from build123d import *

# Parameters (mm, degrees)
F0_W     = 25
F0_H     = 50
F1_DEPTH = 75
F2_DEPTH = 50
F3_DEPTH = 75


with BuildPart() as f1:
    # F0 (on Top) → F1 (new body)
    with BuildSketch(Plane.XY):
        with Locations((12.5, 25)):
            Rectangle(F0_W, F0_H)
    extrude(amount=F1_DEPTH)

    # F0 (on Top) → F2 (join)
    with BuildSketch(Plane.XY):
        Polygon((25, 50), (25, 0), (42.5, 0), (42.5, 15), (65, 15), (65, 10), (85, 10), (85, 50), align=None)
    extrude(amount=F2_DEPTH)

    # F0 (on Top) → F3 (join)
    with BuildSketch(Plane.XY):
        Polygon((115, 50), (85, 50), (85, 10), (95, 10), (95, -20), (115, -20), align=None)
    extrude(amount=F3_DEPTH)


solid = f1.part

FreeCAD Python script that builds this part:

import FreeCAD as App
import Part
import Sketcher

V = App.Vector


def add_polygon(sketch, points):
    """Adds a closed chain of lines whose ends are joined by coincident constraints."""
    first, n = sketch.GeometryCount, len(points)
    for a, b in zip(points, points[1:] + points[:1]):
        sketch.addGeometry(Part.LineSegment(App.Vector(*a, 0), App.Vector(*b, 0)), False)
    for i in range(n):
        sketch.addConstraint(Sketcher.Constraint("Coincident", first + i, 2, first + (i + 1) % n, 1))

doc = App.newDocument("Part")
body = doc.addObject("PartDesign::Body", "Body")

sketch1 = body.newObject("Sketcher::SketchObject", "Sketch")
sketch1.AttachmentSupport = (doc.getObject("XY_Plane"), [""])
sketch1.MapMode = "FlatFace"
add_polygon(sketch1, [(0, 50), (0, 0), (25, 0), (25, 50)])
sketch1.addConstraint(Sketcher.Constraint("Vertical", 0))
sketch1.addConstraint(Sketcher.Constraint("Horizontal", 1))
sketch1.addConstraint(Sketcher.Constraint("Vertical", 2))
sketch1.addConstraint(Sketcher.Constraint("Horizontal", 3))
sketch1.addConstraint(Sketcher.Constraint("Coincident", 0, 2, -1, 1))
sketch1.addConstraint(Sketcher.Constraint("DistanceX", 1, 1, 1, 2, 25.0))
sketch1.addConstraint(Sketcher.Constraint("DistanceY", 0, 2, 0, 1, 50.0))
pad1 = body.newObject("PartDesign::Pad", "Pad")
pad1.Profile = sketch1
pad1.Length = 75

sketch2 = body.newObject("Sketcher::SketchObject", "Sketch001")
sketch2.AttachmentSupport = (doc.getObject("XY_Plane"), [""])
sketch2.MapMode = "FlatFace"
add_polygon(sketch2, [(25, 50), (25, 0), (42, 0), (42, 15), (65, 15), (65, 10), (85, 10), (85, 50)])
sketch2.addConstraint(Sketcher.Constraint("Vertical", 0))
sketch2.addConstraint(Sketcher.Constraint("Horizontal", 1))
sketch2.addConstraint(Sketcher.Constraint("Vertical", 2))
sketch2.addConstraint(Sketcher.Constraint("Horizontal", 3))
sketch2.addConstraint(Sketcher.Constraint("Vertical", 4))
sketch2.addConstraint(Sketcher.Constraint("Horizontal", 5))
sketch2.addConstraint(Sketcher.Constraint("Vertical", 6))
sketch2.addConstraint(Sketcher.Constraint("Horizontal", 7))
sketch2.addConstraint(Sketcher.Constraint("PointOnObject", 0, 2, -1))
sketch2.addConstraint(Sketcher.Constraint("DistanceX", 5, 1, 5, 2, 20.0))
sketch2.addConstraint(Sketcher.Constraint("DistanceX", 7, 2, 7, 1, 60.0))
sketch2.addConstraint(Sketcher.Constraint("DistanceY", 0, 2, 0, 1, 50.0))
sketch2.addConstraint(Sketcher.Constraint("DistanceY", 2, 1, 2, 2, 15.0))
sketch2.addConstraint(Sketcher.Constraint("DistanceY", 4, 2, 4, 1, 5.0))
sketch2.addConstraint(Sketcher.Constraint("DistanceX", 1, 1, 1, 2, 17.5))
sketch2.addConstraint(Sketcher.Constraint("DistanceX", -1, 1, 0, 2, 25.0))
pad2 = body.newObject("PartDesign::Pad", "Pad001")
pad2.Profile = sketch2
pad2.Length = 50

sketch3 = body.newObject("Sketcher::SketchObject", "Sketch002")
sketch3.AttachmentSupport = (doc.getObject("XY_Plane"), [""])
sketch3.MapMode = "FlatFace"
add_polygon(sketch3, [(115, 50), (85, 50), (85, 10), (95, 10), (95, -20), (115, -20)])
sketch3.addConstraint(Sketcher.Constraint("Horizontal", 0))
sketch3.addConstraint(Sketcher.Constraint("Vertical", 1))
sketch3.addConstraint(Sketcher.Constraint("Horizontal", 2))
sketch3.addConstraint(Sketcher.Constraint("Vertical", 3))
sketch3.addConstraint(Sketcher.Constraint("Horizontal", 4))
sketch3.addConstraint(Sketcher.Constraint("Vertical", 5))
sketch3.addConstraint(Sketcher.Constraint("Equal", 0, 3))
sketch3.addConstraint(Sketcher.Constraint("DistanceX", 0, 2, 0, 1, 30.0))
sketch3.addConstraint(Sketcher.Constraint("DistanceX", 2, 1, 2, 2, 10.0))
sketch3.addConstraint(Sketcher.Constraint("DistanceY", 1, 2, 1, 1, 40.0))
sketch3.addConstraint(Sketcher.Constraint("DistanceX", -1, 1, 0, 2, 85.0))
sketch3.addConstraint(Sketcher.Constraint("DistanceY", -1, 1, 0, 2, 50.0))
pad3 = body.newObject("PartDesign::Pad", "Pad002")
pad3.Profile = sketch3
pad3.Length = 75

doc.recompute()
